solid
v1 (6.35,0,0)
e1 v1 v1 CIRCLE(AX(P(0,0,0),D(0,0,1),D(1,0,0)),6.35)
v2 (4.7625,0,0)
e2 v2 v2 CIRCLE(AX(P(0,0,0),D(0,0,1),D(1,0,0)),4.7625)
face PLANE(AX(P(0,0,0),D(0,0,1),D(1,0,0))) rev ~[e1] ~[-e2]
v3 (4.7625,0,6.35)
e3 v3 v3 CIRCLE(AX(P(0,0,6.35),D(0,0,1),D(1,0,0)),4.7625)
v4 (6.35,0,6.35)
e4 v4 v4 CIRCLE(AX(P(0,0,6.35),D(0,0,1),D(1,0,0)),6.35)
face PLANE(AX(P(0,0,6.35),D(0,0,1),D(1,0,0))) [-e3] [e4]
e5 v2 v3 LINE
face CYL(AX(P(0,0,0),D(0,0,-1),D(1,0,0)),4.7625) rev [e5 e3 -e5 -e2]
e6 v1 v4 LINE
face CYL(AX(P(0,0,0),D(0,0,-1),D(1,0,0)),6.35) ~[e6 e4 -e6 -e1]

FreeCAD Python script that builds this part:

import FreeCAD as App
import Part
import Sketcher
Q = App.Units.Quantity

doc = App.newDocument("Part")
body = doc.addObject("PartDesign::Body", "Body")

sketch1 = body.newObject("Sketcher::SketchObject", "Sketch")
sketch1.AttachmentSupport = (doc.getObject("XY_Plane"), [""])
sketch1.MapMode = "FlatFace"
sketch1.addGeometry([
    Part.Circle(App.Vector(0, 0, 0), App.Vector(0, 0, 1), 6.3),
    Part.Circle(App.Vector(0, 0, 0), App.Vector(0, 0, 1), 4.8),
], False)
sketch1.addConstraint([
    Sketcher.Constraint("Coincident", 0, 3, -1, 1),
    Sketcher.Constraint("Coincident", 1, 3, -1, 1),
    Sketcher.Constraint("Diameter", 0, Q("0.5 in")),
    Sketcher.Constraint("Diameter", 1, Q("0.375 in")),
])
pad1 = body.newObject("PartDesign::Pad", "Pad")
pad1.Profile = sketch1
pad1.Length = Q("0.25 in")

doc.recompute()
